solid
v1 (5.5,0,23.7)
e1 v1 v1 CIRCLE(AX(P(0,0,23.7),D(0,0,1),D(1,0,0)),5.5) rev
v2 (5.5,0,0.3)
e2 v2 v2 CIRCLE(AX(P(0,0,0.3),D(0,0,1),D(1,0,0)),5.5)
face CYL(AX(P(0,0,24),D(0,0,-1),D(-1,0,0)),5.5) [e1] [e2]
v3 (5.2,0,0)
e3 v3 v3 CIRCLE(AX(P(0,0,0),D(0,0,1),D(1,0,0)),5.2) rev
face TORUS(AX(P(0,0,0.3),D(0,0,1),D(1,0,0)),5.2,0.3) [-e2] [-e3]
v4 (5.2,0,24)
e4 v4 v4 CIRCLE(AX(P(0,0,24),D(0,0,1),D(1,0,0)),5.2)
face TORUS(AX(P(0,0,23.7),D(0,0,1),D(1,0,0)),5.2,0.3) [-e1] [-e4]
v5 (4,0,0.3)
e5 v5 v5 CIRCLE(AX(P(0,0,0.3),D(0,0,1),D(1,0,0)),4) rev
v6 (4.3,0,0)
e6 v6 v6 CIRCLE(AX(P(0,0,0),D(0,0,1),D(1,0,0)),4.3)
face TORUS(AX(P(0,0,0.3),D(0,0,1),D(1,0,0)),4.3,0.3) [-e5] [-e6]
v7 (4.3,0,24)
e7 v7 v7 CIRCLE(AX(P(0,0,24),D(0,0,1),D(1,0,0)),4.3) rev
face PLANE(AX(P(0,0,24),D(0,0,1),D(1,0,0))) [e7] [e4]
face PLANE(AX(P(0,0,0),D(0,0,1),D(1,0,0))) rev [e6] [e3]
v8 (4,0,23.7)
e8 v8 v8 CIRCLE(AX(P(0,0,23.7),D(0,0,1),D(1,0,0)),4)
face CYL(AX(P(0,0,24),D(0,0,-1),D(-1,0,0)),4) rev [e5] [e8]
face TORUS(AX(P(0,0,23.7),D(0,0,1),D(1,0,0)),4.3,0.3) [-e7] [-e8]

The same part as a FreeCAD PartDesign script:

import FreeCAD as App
import Part
import Sketcher

V = App.Vector
Q = App.Units.Quantity


def edges_at(feature, points):
    """Names of the edges that pass closest to the given points."""
    edges = feature.Shape.Edges
    near = lambda p: min(range(len(edges)), key=lambda i: edges[i].distToShape(Part.Vertex(*p))[0])
    return sorted({f"Edge{near(p) + 1}" for p in points})

doc = App.newDocument("Part")
params = doc.addObject("Spreadsheet::Sheet", "Params")
for row, (alias, value) in enumerate([
    ("sketch1_diameter", "11 mm"),
    ("sketch1_diameter2", "8 mm"),
    ("pad1_length", "24 mm"),
    ("fillet_radius", "0.3 mm"),
], start=1):
    params.set(f"A{row}", alias)
    params.set(f"B{row}", "=" + value)
    params.setAlias(f"B{row}", alias)

body = doc.addObject("PartDesign::Body", "Body")

sketch1 = doc.addObject("Sketcher::SketchObject", "Sketch")
body.addObject(sketch1)
sketch1.AttachmentSupport = (doc.XY_Plane, [""])
sketch1.MapMode = "FlatFace"
sketch1.addGeometry(Part.Circle(V(0, 0, 0), V(0, 0, 1), 5.5), False)
sketch1.addGeometry(Part.Circle(V(0, 0, 0), V(0, 0, 1), 4), False)
sketch1.addConstraint(Sketcher.Constraint("Coincident", 0, 3, -1, 1))
sketch1.addConstraint(Sketcher.Constraint("Coincident", 1, 3, -1, 1))
sketch1.addConstraint(Sketcher.Constraint("Diameter", 0, Q("11 mm")))
sketch1.addConstraint(Sketcher.Constraint("Diameter", 1, Q("8 mm")))
sketch1.setExpression("Constraints[2]", "Params.sketch1_diameter")
sketch1.setExpression("Constraints[3]", "Params.sketch1_diameter2")
pad1 = doc.addObject("PartDesign::Pad", "Pad")
body.addObject(pad1)
pad1.Profile = sketch1
pad1.setExpression("Length", "Params.pad1_length")
doc.recompute()

fillet = doc.addObject("PartDesign::Fillet", "Fillet")
body.addObject(fillet)
fillet.Base = (pad1, edges_at(pad1, [
    (-5.5, 0, 0),
    (-5.5, 0, 24),
    (-4, 0, 0),
    (-4, 0, 24),
]))
fillet.setExpression("Radius", "Params.fillet_radius")

doc.recompute()
